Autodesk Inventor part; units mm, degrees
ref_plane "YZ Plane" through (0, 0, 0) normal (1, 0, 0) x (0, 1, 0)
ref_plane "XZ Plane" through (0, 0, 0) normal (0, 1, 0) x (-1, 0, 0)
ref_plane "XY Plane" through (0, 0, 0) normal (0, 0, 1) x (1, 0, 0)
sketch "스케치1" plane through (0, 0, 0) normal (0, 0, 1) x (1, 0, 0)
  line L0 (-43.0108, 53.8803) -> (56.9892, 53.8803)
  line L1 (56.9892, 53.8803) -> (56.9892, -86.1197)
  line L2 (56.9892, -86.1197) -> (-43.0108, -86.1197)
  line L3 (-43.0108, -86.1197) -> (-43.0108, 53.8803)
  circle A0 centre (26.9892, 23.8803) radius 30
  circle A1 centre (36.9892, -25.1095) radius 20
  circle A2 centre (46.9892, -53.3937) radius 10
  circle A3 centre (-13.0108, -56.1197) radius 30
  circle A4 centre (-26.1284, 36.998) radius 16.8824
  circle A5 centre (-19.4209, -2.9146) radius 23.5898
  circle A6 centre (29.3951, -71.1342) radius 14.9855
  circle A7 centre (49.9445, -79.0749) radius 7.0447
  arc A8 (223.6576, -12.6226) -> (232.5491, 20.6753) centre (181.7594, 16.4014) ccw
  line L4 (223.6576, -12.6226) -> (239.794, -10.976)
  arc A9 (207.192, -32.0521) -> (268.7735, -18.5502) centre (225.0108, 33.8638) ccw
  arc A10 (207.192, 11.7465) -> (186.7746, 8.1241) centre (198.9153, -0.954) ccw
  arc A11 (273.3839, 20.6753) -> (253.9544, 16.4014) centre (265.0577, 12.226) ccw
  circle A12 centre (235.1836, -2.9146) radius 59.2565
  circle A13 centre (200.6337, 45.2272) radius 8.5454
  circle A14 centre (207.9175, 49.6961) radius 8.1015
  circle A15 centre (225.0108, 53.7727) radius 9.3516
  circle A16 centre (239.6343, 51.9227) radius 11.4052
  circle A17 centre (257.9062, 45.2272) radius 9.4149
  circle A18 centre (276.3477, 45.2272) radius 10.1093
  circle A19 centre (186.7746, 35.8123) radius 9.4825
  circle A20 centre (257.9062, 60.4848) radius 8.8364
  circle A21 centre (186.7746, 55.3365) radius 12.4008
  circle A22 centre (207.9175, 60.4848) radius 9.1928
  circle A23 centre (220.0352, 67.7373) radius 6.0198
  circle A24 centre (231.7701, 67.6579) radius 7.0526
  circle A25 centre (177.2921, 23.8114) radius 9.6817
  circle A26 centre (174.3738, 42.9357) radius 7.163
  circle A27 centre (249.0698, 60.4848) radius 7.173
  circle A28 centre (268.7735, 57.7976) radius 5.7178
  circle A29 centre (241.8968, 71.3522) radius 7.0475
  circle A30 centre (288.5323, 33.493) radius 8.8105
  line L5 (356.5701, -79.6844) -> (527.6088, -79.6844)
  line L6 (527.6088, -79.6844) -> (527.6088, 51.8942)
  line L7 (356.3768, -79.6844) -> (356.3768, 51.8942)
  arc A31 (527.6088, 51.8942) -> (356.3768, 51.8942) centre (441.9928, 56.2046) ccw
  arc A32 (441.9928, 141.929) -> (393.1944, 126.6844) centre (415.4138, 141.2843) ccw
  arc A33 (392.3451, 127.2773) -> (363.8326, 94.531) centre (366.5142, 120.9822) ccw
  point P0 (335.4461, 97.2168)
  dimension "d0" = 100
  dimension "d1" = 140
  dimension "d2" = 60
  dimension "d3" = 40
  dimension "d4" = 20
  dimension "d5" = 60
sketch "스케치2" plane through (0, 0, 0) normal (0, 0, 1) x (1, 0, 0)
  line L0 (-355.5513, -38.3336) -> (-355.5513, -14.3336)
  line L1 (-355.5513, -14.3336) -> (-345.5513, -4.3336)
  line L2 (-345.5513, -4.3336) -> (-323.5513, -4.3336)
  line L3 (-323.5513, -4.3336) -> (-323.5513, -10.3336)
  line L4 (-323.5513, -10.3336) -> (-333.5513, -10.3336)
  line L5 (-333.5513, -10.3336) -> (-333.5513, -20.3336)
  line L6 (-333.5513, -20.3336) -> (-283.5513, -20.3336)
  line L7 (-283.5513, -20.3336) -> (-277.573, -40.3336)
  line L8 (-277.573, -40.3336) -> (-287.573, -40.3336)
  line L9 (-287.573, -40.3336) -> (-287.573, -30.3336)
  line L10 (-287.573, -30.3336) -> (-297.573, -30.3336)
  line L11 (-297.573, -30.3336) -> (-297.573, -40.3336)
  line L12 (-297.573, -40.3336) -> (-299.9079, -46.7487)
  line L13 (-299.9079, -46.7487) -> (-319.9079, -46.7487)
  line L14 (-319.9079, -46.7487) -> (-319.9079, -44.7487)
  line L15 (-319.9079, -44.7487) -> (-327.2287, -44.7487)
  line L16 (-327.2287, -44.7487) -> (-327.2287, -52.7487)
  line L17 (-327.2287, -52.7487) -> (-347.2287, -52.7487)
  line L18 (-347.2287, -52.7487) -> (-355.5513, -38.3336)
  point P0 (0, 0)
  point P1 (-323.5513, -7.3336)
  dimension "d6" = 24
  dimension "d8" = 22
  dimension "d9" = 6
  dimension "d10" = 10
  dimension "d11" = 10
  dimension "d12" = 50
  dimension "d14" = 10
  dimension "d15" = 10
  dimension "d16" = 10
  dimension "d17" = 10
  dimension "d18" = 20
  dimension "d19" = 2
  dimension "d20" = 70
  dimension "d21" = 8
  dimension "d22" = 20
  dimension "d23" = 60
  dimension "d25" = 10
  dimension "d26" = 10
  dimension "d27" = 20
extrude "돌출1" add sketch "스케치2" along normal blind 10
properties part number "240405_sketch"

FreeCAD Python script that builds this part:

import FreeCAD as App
import Part
import Sketcher
Q = App.Units.Quantity


def add_polygon(sketch, points):
    """Adds a closed chain of lines whose ends are joined by coincident constraints."""
    first, n = sketch.GeometryCount, len(points)
    for a, b in zip(points, points[1:] + points[:1]):
        sketch.addGeometry(Part.LineSegment(App.Vector(*a, 0), App.Vector(*b, 0)), False)
    for i in range(n):
        sketch.addConstraint(Sketcher.Constraint("Coincident", first + i, 2, first + (i + 1) % n, 1))

doc = App.newDocument("Part")
body = doc.addObject("PartDesign::Body", "Body")

# Sketch on XY plane
sketch1 = body.newObject("Sketcher::SketchObject", "Sketch")
sketch1.AttachmentSupport = (doc.getObject("XY_Plane"), [""])
sketch1.MapMode = "FlatFace"
add_polygon(sketch1, [(-355.6, -14.3), (-355.6, -38.3), (-347.2, -52.7), (-327.2, -52.7), (-327.2, -44.7), (-319.9, -44.7), (-319.9, -46.7), (-299.9, -46.7), (-297.6, -40.3), (-297.6, -30.3), (-287.6, -30.3), (-287.6, -40.3), (-277.6, -40.3), (-283.6, -20.3), (-333.6, -20.3), (-333.6, -10.3), (-323.6, -10.3), (-323.6, -4.3), (-345.6, -4.3)])  # lines 0-18
sketch1.addConstraint(Sketcher.Constraint("Vertical", 0))
sketch1.addConstraint(Sketcher.Constraint("Horizontal", 2))
sketch1.addConstraint(Sketcher.Constraint("Vertical", 3))
sketch1.addConstraint(Sketcher.Constraint("Horizontal", 4))
sketch1.addConstraint(Sketcher.Constraint("Vertical", 5))
sketch1.addConstraint(Sketcher.Constraint("Horizontal", 6))
sketch1.addConstraint(Sketcher.Constraint("Vertical", 8))
sketch1.addConstraint(Sketcher.Constraint("Horizontal", 9))
sketch1.addConstraint(Sketcher.Constraint("Vertical", 10))
sketch1.addConstraint(Sketcher.Constraint("Horizontal", 11))
sketch1.addConstraint(Sketcher.Constraint("Horizontal", 13))
sketch1.addConstraint(Sketcher.Constraint("Vertical", 14))
sketch1.addConstraint(Sketcher.Constraint("Horizontal", 15))
sketch1.addConstraint(Sketcher.Constraint("Vertical", 16))
sketch1.addConstraint(Sketcher.Constraint("Horizontal", 17))
sketch1.addConstraint(Sketcher.Constraint("Horizontal", 7, 2, 10, 2))
sketch1.addConstraint(Sketcher.Constraint("Equal", 2, 6))
sketch1.addConstraint(Sketcher.Constraint("Equal", 9, 11))
sketch1.addConstraint(Sketcher.Constraint("Equal", 11, 15))
sketch1.addConstraint(Sketcher.Constraint("Equal", 15, 8))
sketch1.addConstraint(Sketcher.Constraint("Equal", 10, 14))
sketch1.addConstraint(Sketcher.Constraint("DistanceX", 2, 1, 2, 2, 20.0))
sketch1.addConstraint(Sketcher.Constraint("DistanceX", 9, 1, 9, 2, 10.0))
sketch1.addConstraint(Sketcher.Constraint("DistanceX", 13, 2, 13, 1, 50.0))
sketch1.addConstraint(Sketcher.Constraint("DistanceX", 17, 2, 17, 1, 22.0))
sketch1.addConstraint(Sketcher.Constraint("DistanceY", 0, 2, 0, 1, 24.0))
sketch1.addConstraint(Sketcher.Constraint("DistanceY", 3, 1, 3, 2, 8.0))
sketch1.addConstraint(Sketcher.Constraint("DistanceY", 5, 2, 5, 1, 2.0))
sketch1.addConstraint(Sketcher.Constraint("DistanceY", 16, 1, 16, 2, 6.0))
sketch1.addConstraint(Sketcher.Constraint("Angle", 1, Q("-60 deg")))
sketch1.addConstraint(Sketcher.Constraint("Angle", 7, Q("70 deg")))
sketch1.addConstraint(Sketcher.Constraint("DistanceY", 9, 2, 12, 2, 10.0))
sketch1.addConstraint(Sketcher.Constraint("DistanceX", 0, 2, 13, 2, 22.0))
sketch1.addConstraint(Sketcher.Constraint("DistanceY", 18, 2, 17, 2, 10.0))
sketch1.addConstraint(Sketcher.Constraint("DistanceX", 4, 1, 4, 2, 7.3208))
sketch1.addConstraint(Sketcher.Constraint("DistanceX", 4, 2, -1, 1, 319.908))
sketch1.addConstraint(Sketcher.Constraint("DistanceX", 7, 2, -1, 1, 297.573))
sketch1.addConstraint(Sketcher.Constraint("DistanceY", 0, 2, -1, 1, 38.3336))
pad1 = body.newObject("PartDesign::Pad", "Pad")
pad1.Profile = sketch1
pad1.Length = 10

doc.recompute()
